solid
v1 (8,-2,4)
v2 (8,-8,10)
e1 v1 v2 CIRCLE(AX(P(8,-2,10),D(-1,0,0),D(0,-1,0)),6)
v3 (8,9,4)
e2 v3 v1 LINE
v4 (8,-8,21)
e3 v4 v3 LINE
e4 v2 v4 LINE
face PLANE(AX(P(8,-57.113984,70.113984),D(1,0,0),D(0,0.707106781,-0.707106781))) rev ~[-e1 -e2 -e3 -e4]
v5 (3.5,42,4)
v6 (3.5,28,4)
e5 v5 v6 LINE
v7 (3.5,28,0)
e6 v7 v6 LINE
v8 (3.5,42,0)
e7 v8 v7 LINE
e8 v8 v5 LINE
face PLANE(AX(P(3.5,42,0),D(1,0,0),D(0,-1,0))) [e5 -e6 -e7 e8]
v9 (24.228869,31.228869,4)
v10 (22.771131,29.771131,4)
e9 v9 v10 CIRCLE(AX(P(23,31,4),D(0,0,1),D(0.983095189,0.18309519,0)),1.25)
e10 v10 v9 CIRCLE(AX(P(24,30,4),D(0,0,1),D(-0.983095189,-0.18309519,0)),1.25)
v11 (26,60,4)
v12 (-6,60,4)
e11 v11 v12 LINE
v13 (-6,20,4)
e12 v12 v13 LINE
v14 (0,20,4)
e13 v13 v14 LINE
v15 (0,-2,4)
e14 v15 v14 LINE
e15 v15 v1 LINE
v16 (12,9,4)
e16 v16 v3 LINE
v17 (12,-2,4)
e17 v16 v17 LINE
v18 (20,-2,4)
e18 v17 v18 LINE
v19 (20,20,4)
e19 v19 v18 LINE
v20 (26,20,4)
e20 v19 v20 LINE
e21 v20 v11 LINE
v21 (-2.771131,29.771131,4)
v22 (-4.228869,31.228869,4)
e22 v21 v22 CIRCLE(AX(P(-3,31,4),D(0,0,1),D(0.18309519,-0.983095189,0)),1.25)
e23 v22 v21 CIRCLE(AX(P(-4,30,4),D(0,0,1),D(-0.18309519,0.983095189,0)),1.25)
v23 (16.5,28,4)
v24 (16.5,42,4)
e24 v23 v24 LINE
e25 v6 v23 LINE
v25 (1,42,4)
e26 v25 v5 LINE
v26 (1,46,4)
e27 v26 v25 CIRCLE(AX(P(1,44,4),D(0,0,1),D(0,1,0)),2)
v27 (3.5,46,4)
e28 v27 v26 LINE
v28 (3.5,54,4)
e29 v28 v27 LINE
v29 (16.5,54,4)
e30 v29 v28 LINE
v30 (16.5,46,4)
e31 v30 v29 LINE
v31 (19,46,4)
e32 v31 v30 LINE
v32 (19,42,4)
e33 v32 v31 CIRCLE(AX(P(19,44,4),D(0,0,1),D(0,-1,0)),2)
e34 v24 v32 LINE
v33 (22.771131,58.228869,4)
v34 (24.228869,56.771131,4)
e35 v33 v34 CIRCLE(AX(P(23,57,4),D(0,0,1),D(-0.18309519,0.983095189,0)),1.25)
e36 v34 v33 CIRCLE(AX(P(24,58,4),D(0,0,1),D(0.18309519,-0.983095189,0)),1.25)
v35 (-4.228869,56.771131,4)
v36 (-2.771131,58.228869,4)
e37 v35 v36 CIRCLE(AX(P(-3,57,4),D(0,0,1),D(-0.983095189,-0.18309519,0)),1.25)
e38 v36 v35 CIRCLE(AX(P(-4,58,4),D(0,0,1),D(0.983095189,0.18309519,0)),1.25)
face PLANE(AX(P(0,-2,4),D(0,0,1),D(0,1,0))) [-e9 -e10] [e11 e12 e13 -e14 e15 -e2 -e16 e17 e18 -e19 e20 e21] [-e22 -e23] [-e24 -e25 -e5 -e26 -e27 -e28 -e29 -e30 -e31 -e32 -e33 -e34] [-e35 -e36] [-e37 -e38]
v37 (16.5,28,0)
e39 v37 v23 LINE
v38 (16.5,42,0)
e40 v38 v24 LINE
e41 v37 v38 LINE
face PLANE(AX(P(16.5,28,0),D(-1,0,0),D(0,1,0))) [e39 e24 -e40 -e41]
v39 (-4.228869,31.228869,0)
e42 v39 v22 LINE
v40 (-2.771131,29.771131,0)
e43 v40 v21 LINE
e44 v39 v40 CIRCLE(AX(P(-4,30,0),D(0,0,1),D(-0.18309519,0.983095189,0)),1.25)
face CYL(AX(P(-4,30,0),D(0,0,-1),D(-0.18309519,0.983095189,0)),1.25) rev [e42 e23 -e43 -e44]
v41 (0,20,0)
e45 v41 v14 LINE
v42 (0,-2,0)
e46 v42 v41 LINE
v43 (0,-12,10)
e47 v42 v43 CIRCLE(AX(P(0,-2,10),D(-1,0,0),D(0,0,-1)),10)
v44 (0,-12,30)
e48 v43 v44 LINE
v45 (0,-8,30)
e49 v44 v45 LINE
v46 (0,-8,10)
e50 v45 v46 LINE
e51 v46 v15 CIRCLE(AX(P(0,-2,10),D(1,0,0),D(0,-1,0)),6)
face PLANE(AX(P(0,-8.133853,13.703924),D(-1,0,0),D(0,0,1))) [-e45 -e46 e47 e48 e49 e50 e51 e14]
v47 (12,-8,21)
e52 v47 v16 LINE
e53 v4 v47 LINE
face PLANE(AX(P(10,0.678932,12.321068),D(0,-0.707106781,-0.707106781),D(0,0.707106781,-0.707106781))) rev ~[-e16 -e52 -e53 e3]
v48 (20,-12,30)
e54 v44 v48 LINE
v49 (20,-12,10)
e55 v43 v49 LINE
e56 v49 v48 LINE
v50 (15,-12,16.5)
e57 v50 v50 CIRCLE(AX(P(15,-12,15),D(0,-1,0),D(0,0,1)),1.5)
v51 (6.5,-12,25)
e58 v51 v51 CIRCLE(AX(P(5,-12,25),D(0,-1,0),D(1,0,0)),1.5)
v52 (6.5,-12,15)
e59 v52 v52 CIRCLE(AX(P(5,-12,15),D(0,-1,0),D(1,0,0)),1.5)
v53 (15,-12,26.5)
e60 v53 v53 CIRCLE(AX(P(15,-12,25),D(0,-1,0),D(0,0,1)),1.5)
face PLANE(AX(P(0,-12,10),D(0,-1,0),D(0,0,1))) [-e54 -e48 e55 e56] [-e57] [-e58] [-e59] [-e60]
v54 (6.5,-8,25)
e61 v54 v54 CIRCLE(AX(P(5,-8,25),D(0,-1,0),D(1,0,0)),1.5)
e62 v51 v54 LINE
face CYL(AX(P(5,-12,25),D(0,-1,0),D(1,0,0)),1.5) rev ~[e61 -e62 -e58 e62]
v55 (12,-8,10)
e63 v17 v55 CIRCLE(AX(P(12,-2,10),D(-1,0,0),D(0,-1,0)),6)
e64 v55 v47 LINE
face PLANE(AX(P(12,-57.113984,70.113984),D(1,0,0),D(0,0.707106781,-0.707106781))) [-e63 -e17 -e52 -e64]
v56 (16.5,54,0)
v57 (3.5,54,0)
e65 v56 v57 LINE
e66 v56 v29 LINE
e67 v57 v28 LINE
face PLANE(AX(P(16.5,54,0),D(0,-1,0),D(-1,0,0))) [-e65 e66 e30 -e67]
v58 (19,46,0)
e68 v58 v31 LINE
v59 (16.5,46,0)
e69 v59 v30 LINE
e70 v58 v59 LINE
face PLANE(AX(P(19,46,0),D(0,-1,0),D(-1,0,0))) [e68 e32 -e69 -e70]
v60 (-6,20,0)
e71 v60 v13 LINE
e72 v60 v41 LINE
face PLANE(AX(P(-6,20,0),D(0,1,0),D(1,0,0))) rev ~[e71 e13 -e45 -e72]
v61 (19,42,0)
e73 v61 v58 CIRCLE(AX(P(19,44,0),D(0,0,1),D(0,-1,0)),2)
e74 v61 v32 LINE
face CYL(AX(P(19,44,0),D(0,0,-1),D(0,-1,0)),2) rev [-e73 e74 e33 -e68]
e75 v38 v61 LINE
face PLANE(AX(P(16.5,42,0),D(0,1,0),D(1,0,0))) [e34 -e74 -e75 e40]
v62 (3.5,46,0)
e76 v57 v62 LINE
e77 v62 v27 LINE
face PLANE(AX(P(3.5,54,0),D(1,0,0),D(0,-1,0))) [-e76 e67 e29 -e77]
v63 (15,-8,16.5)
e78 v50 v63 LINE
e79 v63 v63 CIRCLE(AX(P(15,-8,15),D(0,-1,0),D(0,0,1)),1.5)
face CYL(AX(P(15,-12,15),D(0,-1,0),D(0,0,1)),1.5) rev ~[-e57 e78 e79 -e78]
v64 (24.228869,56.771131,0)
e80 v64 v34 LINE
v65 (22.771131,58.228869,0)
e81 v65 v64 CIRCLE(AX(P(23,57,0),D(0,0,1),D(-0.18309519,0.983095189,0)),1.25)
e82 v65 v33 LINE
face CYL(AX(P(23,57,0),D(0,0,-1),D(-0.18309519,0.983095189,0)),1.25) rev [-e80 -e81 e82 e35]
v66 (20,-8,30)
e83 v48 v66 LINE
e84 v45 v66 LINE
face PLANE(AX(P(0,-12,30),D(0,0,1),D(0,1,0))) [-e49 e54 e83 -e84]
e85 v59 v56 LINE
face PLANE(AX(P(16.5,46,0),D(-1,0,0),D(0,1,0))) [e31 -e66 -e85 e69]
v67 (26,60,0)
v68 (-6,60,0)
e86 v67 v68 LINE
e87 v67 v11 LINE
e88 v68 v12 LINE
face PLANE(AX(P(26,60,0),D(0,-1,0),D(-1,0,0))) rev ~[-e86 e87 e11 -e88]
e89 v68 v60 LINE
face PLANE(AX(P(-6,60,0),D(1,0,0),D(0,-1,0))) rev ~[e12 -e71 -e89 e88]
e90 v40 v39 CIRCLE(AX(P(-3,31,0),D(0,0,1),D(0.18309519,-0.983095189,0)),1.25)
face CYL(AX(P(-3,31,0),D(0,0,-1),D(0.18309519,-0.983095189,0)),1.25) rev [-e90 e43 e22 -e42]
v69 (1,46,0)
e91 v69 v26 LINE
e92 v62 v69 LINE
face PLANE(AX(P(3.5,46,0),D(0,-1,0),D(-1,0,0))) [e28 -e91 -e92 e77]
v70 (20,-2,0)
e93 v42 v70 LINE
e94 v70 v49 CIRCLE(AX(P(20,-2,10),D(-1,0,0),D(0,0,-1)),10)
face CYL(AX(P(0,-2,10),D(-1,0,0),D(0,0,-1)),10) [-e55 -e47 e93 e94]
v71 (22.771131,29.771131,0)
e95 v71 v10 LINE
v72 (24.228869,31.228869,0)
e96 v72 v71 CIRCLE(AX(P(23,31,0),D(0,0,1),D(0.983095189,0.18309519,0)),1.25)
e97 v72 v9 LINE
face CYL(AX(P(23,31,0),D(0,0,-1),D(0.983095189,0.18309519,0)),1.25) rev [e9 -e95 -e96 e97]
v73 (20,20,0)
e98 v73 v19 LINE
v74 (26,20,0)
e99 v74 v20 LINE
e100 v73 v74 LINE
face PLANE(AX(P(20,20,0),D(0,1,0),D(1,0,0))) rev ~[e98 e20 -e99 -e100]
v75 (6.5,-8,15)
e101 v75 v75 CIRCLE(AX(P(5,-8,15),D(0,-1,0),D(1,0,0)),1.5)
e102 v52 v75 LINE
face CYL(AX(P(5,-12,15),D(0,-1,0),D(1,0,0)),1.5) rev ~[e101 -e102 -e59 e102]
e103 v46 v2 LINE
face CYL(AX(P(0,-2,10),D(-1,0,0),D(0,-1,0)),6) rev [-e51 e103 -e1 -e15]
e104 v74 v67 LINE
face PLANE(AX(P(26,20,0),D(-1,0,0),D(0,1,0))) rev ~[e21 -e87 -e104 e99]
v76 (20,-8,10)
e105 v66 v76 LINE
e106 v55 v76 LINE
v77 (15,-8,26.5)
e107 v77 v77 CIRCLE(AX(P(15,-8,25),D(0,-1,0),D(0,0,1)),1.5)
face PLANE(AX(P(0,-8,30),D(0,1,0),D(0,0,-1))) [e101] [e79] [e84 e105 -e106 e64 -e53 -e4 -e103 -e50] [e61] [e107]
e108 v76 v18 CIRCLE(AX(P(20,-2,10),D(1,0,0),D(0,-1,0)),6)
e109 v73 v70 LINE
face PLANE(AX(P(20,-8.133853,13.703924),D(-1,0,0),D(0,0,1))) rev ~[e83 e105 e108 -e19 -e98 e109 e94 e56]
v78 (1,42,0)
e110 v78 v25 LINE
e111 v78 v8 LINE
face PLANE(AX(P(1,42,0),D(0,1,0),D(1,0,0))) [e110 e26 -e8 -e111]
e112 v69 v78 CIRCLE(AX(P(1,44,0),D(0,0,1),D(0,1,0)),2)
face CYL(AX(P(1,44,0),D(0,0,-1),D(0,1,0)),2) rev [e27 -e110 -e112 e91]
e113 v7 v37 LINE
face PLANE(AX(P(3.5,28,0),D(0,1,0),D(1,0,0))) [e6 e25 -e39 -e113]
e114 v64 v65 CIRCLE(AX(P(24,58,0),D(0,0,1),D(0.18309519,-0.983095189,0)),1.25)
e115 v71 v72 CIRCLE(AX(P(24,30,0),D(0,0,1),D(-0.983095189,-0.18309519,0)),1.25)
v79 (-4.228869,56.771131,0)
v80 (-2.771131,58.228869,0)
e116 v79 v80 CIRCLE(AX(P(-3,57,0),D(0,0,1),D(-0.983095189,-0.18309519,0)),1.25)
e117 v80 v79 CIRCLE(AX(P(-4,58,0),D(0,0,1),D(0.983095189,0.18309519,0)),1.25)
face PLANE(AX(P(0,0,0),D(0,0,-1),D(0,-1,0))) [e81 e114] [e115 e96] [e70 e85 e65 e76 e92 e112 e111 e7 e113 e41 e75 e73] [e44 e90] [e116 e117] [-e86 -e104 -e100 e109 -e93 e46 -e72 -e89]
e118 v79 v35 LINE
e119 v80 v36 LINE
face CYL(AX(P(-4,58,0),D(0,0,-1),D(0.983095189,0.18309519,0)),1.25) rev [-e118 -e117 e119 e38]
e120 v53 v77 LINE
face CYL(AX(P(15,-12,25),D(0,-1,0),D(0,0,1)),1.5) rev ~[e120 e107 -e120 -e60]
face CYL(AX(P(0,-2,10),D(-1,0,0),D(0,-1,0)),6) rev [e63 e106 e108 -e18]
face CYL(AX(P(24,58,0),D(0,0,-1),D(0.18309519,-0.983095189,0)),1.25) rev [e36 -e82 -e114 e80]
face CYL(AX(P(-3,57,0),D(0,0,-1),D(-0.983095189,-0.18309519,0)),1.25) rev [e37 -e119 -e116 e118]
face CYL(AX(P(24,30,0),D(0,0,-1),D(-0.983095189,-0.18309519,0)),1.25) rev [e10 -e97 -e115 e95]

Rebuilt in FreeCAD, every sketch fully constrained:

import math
import FreeCAD as App
import Part
import Sketcher

V = App.Vector

doc = App.newDocument("Part")
body = doc.addObject("PartDesign::Body", "Body")

sketch1 = doc.addObject("Sketcher::SketchObject", "Sketch")
body.addObject(sketch1)
sketch1.AttachmentSupport = (doc.XY_Plane, [""])
sketch1.MapMode = "FlatFace"
sketch1.addGeometry(Part.LineSegment(V(0, 20, 0), V(0, 0, 0)), False)
sketch1.addGeometry(Part.LineSegment(V(0, 0, 0), V(20, 0, 0)), False)
sketch1.addGeometry(Part.LineSegment(V(20, 0, 0), V(20, 20, 0)), False)
sketch1.addGeometry(Part.LineSegment(V(20, 20, 0), V(26, 20, 0)), False)
sketch1.addGeometry(Part.LineSegment(V(26, 20, 0), V(26, 60, 0)), False)
sketch1.addGeometry(Part.LineSegment(V(26, 60, 0), V(-6, 60, 0)), False)
sketch1.addGeometry(Part.LineSegment(V(-6, 60, 0), V(-6, 20, 0)), False)
sketch1.addGeometry(Part.LineSegment(V(-6, 20, 0), V(0, 20, 0)), False)
sketch1.addGeometry(Part.ArcOfCircle(Part.Circle(V(-4, 30, 0), V(0, 0, 1), 1.2), math.radians(101), math.radians(349)), False)
sketch1.addGeometry(Part.ArcOfCircle(Part.Circle(V(-3, 31, 0), V(0, 0, 1), 1.2), math.radians(-79), math.radians(169)), False)
sketch1.addGeometry(Part.ArcOfCircle(Part.Circle(V(23, 31, 0), V(0, 0, 1), 1.2), math.radians(11), math.radians(259)), False)
sketch1.addGeometry(Part.ArcOfCircle(Part.Circle(V(24, 30, 0), V(0, 0, 1), 1.2), math.radians(-169), math.radians(79)), False)
sketch1.addGeometry(Part.LineSegment(V(3.5, 46, 0), V(3.5, 54, 0)), False)
sketch1.addGeometry(Part.LineSegment(V(3.5, 54, 0), V(16.5, 54, 0)), False)
sketch1.addGeometry(Part.LineSegment(V(16.5, 54, 0), V(16.5, 46, 0)), False)
sketch1.addGeometry(Part.LineSegment(V(16.5, 46, 0), V(19, 46, 0)), False)
sketch1.addGeometry(Part.ArcOfCircle(Part.Circle(V(19, 44, 0), V(0, 0, 1), 2), math.radians(-90), math.radians(90)), False)
sketch1.addGeometry(Part.LineSegment(V(19, 42, 0), V(16.5, 42, 0)), False)
sketch1.addGeometry(Part.LineSegment(V(16.5, 42, 0), V(16.5, 28, 0)), False)
sketch1.addGeometry(Part.LineSegment(V(16.5, 28, 0), V(3.5, 28, 0)), False)
sketch1.addGeometry(Part.LineSegment(V(3.5, 28, 0), V(3.5, 42, 0)), False)
sketch1.addGeometry(Part.LineSegment(V(3.5, 42, 0), V(1, 42, 0)), False)
sketch1.addGeometry(Part.ArcOfCircle(Part.Circle(V(1, 44, 0), V(0, 0, 1), 2), math.radians(90), math.radians(270)), False)
sketch1.addGeometry(Part.LineSegment(V(1, 46, 0), V(3.5, 46, 0)), False)
sketch1.addGeometry(Part.ArcOfCircle(Part.Circle(V(-4, 58, 0), V(0, 0, 1), 1.2), math.radians(11), math.radians(259)), False)
sketch1.addGeometry(Part.ArcOfCircle(Part.Circle(V(-3, 57, 0), V(0, 0, 1), 1.2), math.radians(-169), math.radians(79)), False)
sketch1.addGeometry(Part.ArcOfCircle(Part.Circle(V(24, 58, 0), V(0, 0, 1), 1.2), math.radians(-79), math.radians(169)), False)
sketch1.addGeometry(Part.ArcOfCircle(Part.Circle(V(23, 57, 0), V(0, 0, 1), 1.2), math.radians(101), math.radians(349)), False)
sketch1.addConstraint(Sketcher.Constraint("Coincident", 0, 2, 1, 1))
sketch1.addConstraint(Sketcher.Constraint("Coincident", 1, 2, 2, 1))
sketch1.addConstraint(Sketcher.Constraint("Coincident", 2, 2, 3, 1))
sketch1.addConstraint(Sketcher.Constraint("Coincident", 3, 2, 4, 1))
sketch1.addConstraint(Sketcher.Constraint("Coincident", 4, 2, 5, 1))
sketch1.addConstraint(Sketcher.Constraint("Coincident", 5, 2, 6, 1))
sketch1.addConstraint(Sketcher.Constraint("Coincident", 6, 2, 7, 1))
sketch1.addConstraint(Sketcher.Constraint("Coincident", 7, 2, 0, 1))
sketch1.addConstraint(Sketcher.Constraint("Coincident", 8, 1, 9, 2))
sketch1.addConstraint(Sketcher.Constraint("Coincident", 9, 1, 8, 2))
sketch1.addConstraint(Sketcher.Constraint("Coincident", 10, 1, 11, 2))
sketch1.addConstraint(Sketcher.Constraint("Coincident", 11, 1, 10, 2))
sketch1.addConstraint(Sketcher.Constraint("Coincident", 12, 2, 13, 1))
sketch1.addConstraint(Sketcher.Constraint("Coincident", 13, 2, 14, 1))
sketch1.addConstraint(Sketcher.Constraint("Coincident", 14, 2, 15, 1))
sketch1.addConstraint(Sketcher.Constraint("Tangent", 15, 2, 16, 2))
sketch1.addConstraint(Sketcher.Constraint("Tangent", 16, 1, 17, 1))
sketch1.addConstraint(Sketcher.Constraint("Coincident", 17, 2, 18, 1))
sketch1.addConstraint(Sketcher.Constraint("Coincident", 18, 2, 19, 1))
sketch1.addConstraint(Sketcher.Constraint("Coincident", 19, 2, 20, 1))
sketch1.addConstraint(Sketcher.Constraint("Coincident", 20, 2, 21, 1))
sketch1.addConstraint(Sketcher.Constraint("Tangent", 21, 2, 22, 2))
sketch1.addConstraint(Sketcher.Constraint("Tangent", 22, 1, 23, 1))
sketch1.addConstraint(Sketcher.Constraint("Coincident", 23, 2, 12, 1))
sketch1.addConstraint(Sketcher.Constraint("Coincident", 24, 1, 25, 2))
sketch1.addConstraint(Sketcher.Constraint("Coincident", 25, 1, 24, 2))
sketch1.addConstraint(Sketcher.Constraint("Coincident", 26, 1, 27, 2))
sketch1.addConstraint(Sketcher.Constraint("Coincident", 27, 1, 26, 2))
sketch1.addConstraint(Sketcher.Constraint("Vertical", 0))
sketch1.addConstraint(Sketcher.Constraint("Horizontal", 1))
sketch1.addConstraint(Sketcher.Constraint("Vertical", 2))
sketch1.addConstraint(Sketcher.Constraint("Horizontal", 3))
sketch1.addConstraint(Sketcher.Constraint("Vertical", 4))
sketch1.addConstraint(Sketcher.Constraint("Horizontal", 5))
sketch1.addConstraint(Sketcher.Constraint("Vertical", 6))
sketch1.addConstraint(Sketcher.Constraint("Horizontal", 7))
sketch1.addConstraint(Sketcher.Constraint("Vertical", 12))
sketch1.addConstraint(Sketcher.Constraint("Horizontal", 13))
sketch1.addConstraint(Sketcher.Constraint("Vertical", 14))
sketch1.addConstraint(Sketcher.Constraint("Horizontal", 15))
sketch1.addConstraint(Sketcher.Constraint("Horizontal", 17))
sketch1.addConstraint(Sketcher.Constraint("Vertical", 18))
sketch1.addConstraint(Sketcher.Constraint("Horizontal", 19))
sketch1.addConstraint(Sketcher.Constraint("Vertical", 20))
sketch1.addConstraint(Sketcher.Constraint("Horizontal", 21))
sketch1.addConstraint(Sketcher.Constraint("Horizontal", 23))
sketch1.addConstraint(Sketcher.Constraint("Coincident", 0, 2, -1, 1))
sketch1.addConstraint(Sketcher.Constraint("Equal", 8, 9))
sketch1.addConstraint(Sketcher.Constraint("Equal", 9, 10))
sketch1.addConstraint(Sketcher.Constraint("Equal", 10, 11))
sketch1.addConstraint(Sketcher.Constraint("Equal", 16, 22))
sketch1.addConstraint(Sketcher.Constraint("Equal", 11, 24))
sketch1.addConstraint(Sketcher.Constraint("Equal", 24, 25))
sketch1.addConstraint(Sketcher.Constraint("Equal", 25, 26))
sketch1.addConstraint(Sketcher.Constraint("Equal", 26, 27))
sketch1.addConstraint(Sketcher.Constraint("Horizontal", 9, 3, 10, 3))
sketch1.addConstraint(Sketcher.Constraint("Horizontal", 8, 3, 11, 3))
sketch1.addConstraint(Sketcher.Constraint("Horizontal", 16, 3, 22, 3))
sketch1.addConstraint(Sketcher.Constraint("Horizontal", 24, 3, 26, 3))
sketch1.addConstraint(Sketcher.Constraint("Horizontal", 25, 3, 27, 3))
sketch1.addConstraint(Sketcher.Constraint("Horizontal", 3, 2, 6, 2))
sketch1.addConstraint(Sketcher.Constraint("Horizontal", 8, 1, 10, 1))
sketch1.addConstraint(Sketcher.Constraint("Horizontal", 25, 1, 26, 1))
sketch1.addConstraint(Sketcher.Constraint("Vertical", 8, 3, 24, 3))
sketch1.addConstraint(Sketcher.Constraint("Vertical", 9, 3, 25, 3))
sketch1.addConstraint(Sketcher.Constraint("Vertical", 11, 3, 26, 3))
sketch1.addConstraint(Sketcher.Constraint("Vertical", 14, 2, 17, 2))
sketch1.addConstraint(Sketcher.Constraint("Vertical", 12, 2, 19, 2))
sketch1.addConstraint(Sketcher.Constraint("Vertical", 9, 1, 24, 1))
sketch1.addConstraint(Sketcher.Constraint("Equal", 3, 7))
sketch1.addConstraint(Sketcher.Constraint("Equal", 17, 21))
sketch1.addConstraint(Sketcher.Constraint("Equal", 1, 0))
sketch1.addConstraint(Sketcher.Constraint("Radius", 16, 2.0))
sketch1.addConstraint(Sketcher.Constraint("DistanceX", 1, 1, 1, 2, 20.0))
sketch1.addConstraint(Sketcher.Constraint("DistanceX", 3, 1, 3, 2, 6.0))
sketch1.addConstraint(Sketcher.Constraint("DistanceX", 13, 1, 13, 2, 13.0))
sketch1.addConstraint(Sketcher.Constraint("DistanceY", 4, 1, 4, 2, 40.0))
sketch1.addConstraint(Sketcher.Constraint("DistanceY", 12, 1, 12, 2, 8.0))
sketch1.addConstraint(Sketcher.Constraint("DistanceY", 18, 2, 18, 1, 14.0))
sketch1.addConstraint(Sketcher.Constraint("Radius", 8, 1.25))
sketch1.addConstraint(Sketcher.Constraint("DistanceX", 15, 1, 15, 2, 2.5))
sketch1.addConstraint(Sketcher.Constraint("DistanceX", 8, 3, -1, 1, 4.0))
sketch1.addConstraint(Sketcher.Constraint("DistanceY", -1, 1, 8, 3, 30.0))
sketch1.addConstraint(Sketcher.Constraint("DistanceX", 9, 3, -1, 1, 3.0))
sketch1.addConstraint(Sketcher.Constraint("DistanceY", -1, 1, 9, 3, 31.0))
sketch1.addConstraint(Sketcher.Constraint("DistanceX", -1, 1, 10, 3, 23.0))
sketch1.addConstraint(Sketcher.Constraint("DistanceX", -1, 1, 16, 3, 19.0))
sketch1.addConstraint(Sketcher.Constraint("DistanceY", -1, 1, 16, 3, 44.0))
sketch1.addConstraint(Sketcher.Constraint("DistanceY", -1, 1, 24, 3, 58.0))
pad1 = doc.addObject("PartDesign::Pad", "Pad")
body.addObject(pad1)
pad1.Profile = sketch1
pad1.Length = 4

sketch2 = doc.addObject("Sketcher::SketchObject", "Sketch001")
body.addObject(sketch2)
sketch2.AttachmentSupport = (doc.YZ_Plane, [""])
sketch2.MapMode = "FlatFace"
sketch2.addGeometry(Part.LineSegment(V(0, 0, 0), V(-2, 0, 0)), False)
sketch2.addGeometry(Part.ArcOfCircle(Part.Circle(V(-2, 10, 0), V(0, 0, 1), 10), math.radians(180), math.radians(270)), False)
sketch2.addGeometry(Part.LineSegment(V(-12, 10, 0), V(-12, 30, 0)), False)
sketch2.addGeometry(Part.LineSegment(V(-12, 30, 0), V(-8, 30, 0)), False)
sketch2.addGeometry(Part.LineSegment(V(-8, 30, 0), V(-8, 10, 0)), False)
sketch2.addGeometry(Part.ArcOfCircle(Part.Circle(V(-2, 10, 0), V(0, 0, 1), 6), math.radians(180), math.radians(270)), False)
sketch2.addGeometry(Part.LineSegment(V(-2, 4, 0), V(0, 4, 0)), False)
sketch2.addGeometry(Part.LineSegment(V(0, 4, 0), V(0, 0, 0)), False)
sketch2.addConstraint(Sketcher.Constraint("Tangent", 0, 2, 1, 2))
sketch2.addConstraint(Sketcher.Constraint("Tangent", 1, 1, 2, 1))
sketch2.addConstraint(Sketcher.Constraint("Coincident", 2, 2, 3, 1))
sketch2.addConstraint(Sketcher.Constraint("Coincident", 3, 2, 4, 1))
sketch2.addConstraint(Sketcher.Constraint("Tangent", 4, 2, 5, 1))
sketch2.addConstraint(Sketcher.Constraint("Tangent", 5, 2, 6, 1))
sketch2.addConstraint(Sketcher.Constraint("Coincident", 6, 2, 7, 1))
sketch2.addConstraint(Sketcher.Constraint("Coincident", 7, 2, 0, 1))
sketch2.addConstraint(Sketcher.Constraint("Horizontal", 0))
sketch2.addConstraint(Sketcher.Constraint("Vertical", 2))
sketch2.addConstraint(Sketcher.Constraint("Horizontal", 3))
sketch2.addConstraint(Sketcher.Constraint("Vertical", 4))
sketch2.addConstraint(Sketcher.Constraint("Horizontal", 6))
sketch2.addConstraint(Sketcher.Constraint("Vertical", 7))
sketch2.addConstraint(Sketcher.Constraint("Coincident", 7, 2, -1, 1))
sketch2.addConstraint(Sketcher.Constraint("Coincident", 5, 3, 1, 3))
sketch2.addConstraint(Sketcher.Constraint("Radius", 1, 10.0))
sketch2.addConstraint(Sketcher.Constraint("Radius", 5, 6.0))
sketch2.addConstraint(Sketcher.Constraint("DistanceX", 0, 2, 0, 1, 2.0))
sketch2.addConstraint(Sketcher.Constraint("DistanceY", 2, 1, 2, 2, 20.0))
pad2 = doc.addObject("PartDesign::Pad", "Pad001")
body.addObject(pad2)
pad2.Profile = sketch2
pad2.Length = 20

sketch3 = doc.addObject("Sketcher::SketchObject", "Sketch002")
body.addObject(sketch3)
sketch3.Placement = App.Placement(V(10, 0.678932, 12.321068), App.Rotation(V(0, 0.707106781, -0.707106781), V(0.999999999, 0, 0), V(0, -0.707106781, -0.707106781), "ZXY"))
sketch3.addGeometry(Part.LineSegment(V(-81.7, 2, 0), V(-81.7, -2, 0)), False)
sketch3.addGeometry(Part.LineSegment(V(-81.7, -2, 0), V(81.7, -2, 0)), False)
sketch3.addGeometry(Part.LineSegment(V(81.7, -2, 0), V(81.7, 2, 0)), False)
sketch3.addGeometry(Part.LineSegment(V(81.7, 2, 0), V(-81.7, 2, 0)), False)
sketch3.addConstraint(Sketcher.Constraint("Coincident", 0, 2, 1, 1))
sketch3.addConstraint(Sketcher.Constraint("Coincident", 1, 2, 2, 1))
sketch3.addConstraint(Sketcher.Constraint("Coincident", 2, 2, 3, 1))
sketch3.addConstraint(Sketcher.Constraint("Coincident", 3, 2, 0, 1))
sketch3.addConstraint(Sketcher.Constraint("Vertical", 0))
sketch3.addConstraint(Sketcher.Constraint("Horizontal", 1))
sketch3.addConstraint(Sketcher.Constraint("Vertical", 2))
sketch3.addConstraint(Sketcher.Constraint("Horizontal", 3))
sketch3.addConstraint(Sketcher.Constraint("Symmetric", 0, 2, 2, 2, -1, 1))
sketch3.addConstraint(Sketcher.Constraint("DistanceY", 0, 2, 0, 1, 4.0))
sketch3.addConstraint(Sketcher.Constraint("DistanceX", 1, 1, 1, 2, 163.463051))
pad3 = doc.addObject("PartDesign::Pad", "Pad002")
body.addObject(pad3)
pad3.Profile = sketch3
pad3.Type = "UpToFirst"

sketch4 = doc.addObject("Sketcher::SketchObject", "Sketch003")
body.addObject(sketch4)
sketch4.AttachmentSupport = (doc.XZ_Plane, [""])
sketch4.MapMode = "FlatFace"
sketch4.AttachmentOffset = App.Placement(V(0, 0, 12), App.Rotation())
sketch4.addGeometry(Part.Circle(V(5, 25, 0), V(0, 0, 1), 1.5), False)
sketch4.addGeometry(Part.Circle(V(5, 15, 0), V(0, 0, 1), 1.5), False)
sketch4.addGeometry(Part.Circle(V(15, 15, 0), V(0, 0, 1), 1.5), False)
sketch4.addGeometry(Part.Circle(V(15, 25, 0), V(0, 0, 1), 1.5), False)
sketch4.addConstraint(Sketcher.Constraint("Equal", 0, 1))
sketch4.addConstraint(Sketcher.Constraint("Equal", 1, 2))
sketch4.addConstraint(Sketcher.Constraint("Equal", 2, 3))
sketch4.addConstraint(Sketcher.Constraint("Horizontal", 1, 3, 2, 3))
sketch4.addConstraint(Sketcher.Constraint("Horizontal", 0, 3, 3, 3))
sketch4.addConstraint(Sketcher.Constraint("Vertical", 0, 3, 1, 3))
sketch4.addConstraint(Sketcher.Constraint("Vertical", 2, 3, 3, 3))
sketch4.addConstraint(Sketcher.Constraint("Diameter", 0, 3.0))
sketch4.addConstraint(Sketcher.Constraint("DistanceX", -1, 1, 0, 3, 5.0))
sketch4.addConstraint(Sketcher.Constraint("DistanceY", -1, 1, 0, 3, 25.0))
sketch4.addConstraint(Sketcher.Constraint("DistanceY", -1, 1, 1, 3, 15.0))
sketch4.addConstraint(Sketcher.Constraint("DistanceX", -1, 1, 2, 3, 15.0))
pocket1 = doc.addObject("PartDesign::Pocket", "Pocket")
body.addObject(pocket1)
pocket1.Profile = sketch4
pocket1.Length = 10

doc.recompute()
